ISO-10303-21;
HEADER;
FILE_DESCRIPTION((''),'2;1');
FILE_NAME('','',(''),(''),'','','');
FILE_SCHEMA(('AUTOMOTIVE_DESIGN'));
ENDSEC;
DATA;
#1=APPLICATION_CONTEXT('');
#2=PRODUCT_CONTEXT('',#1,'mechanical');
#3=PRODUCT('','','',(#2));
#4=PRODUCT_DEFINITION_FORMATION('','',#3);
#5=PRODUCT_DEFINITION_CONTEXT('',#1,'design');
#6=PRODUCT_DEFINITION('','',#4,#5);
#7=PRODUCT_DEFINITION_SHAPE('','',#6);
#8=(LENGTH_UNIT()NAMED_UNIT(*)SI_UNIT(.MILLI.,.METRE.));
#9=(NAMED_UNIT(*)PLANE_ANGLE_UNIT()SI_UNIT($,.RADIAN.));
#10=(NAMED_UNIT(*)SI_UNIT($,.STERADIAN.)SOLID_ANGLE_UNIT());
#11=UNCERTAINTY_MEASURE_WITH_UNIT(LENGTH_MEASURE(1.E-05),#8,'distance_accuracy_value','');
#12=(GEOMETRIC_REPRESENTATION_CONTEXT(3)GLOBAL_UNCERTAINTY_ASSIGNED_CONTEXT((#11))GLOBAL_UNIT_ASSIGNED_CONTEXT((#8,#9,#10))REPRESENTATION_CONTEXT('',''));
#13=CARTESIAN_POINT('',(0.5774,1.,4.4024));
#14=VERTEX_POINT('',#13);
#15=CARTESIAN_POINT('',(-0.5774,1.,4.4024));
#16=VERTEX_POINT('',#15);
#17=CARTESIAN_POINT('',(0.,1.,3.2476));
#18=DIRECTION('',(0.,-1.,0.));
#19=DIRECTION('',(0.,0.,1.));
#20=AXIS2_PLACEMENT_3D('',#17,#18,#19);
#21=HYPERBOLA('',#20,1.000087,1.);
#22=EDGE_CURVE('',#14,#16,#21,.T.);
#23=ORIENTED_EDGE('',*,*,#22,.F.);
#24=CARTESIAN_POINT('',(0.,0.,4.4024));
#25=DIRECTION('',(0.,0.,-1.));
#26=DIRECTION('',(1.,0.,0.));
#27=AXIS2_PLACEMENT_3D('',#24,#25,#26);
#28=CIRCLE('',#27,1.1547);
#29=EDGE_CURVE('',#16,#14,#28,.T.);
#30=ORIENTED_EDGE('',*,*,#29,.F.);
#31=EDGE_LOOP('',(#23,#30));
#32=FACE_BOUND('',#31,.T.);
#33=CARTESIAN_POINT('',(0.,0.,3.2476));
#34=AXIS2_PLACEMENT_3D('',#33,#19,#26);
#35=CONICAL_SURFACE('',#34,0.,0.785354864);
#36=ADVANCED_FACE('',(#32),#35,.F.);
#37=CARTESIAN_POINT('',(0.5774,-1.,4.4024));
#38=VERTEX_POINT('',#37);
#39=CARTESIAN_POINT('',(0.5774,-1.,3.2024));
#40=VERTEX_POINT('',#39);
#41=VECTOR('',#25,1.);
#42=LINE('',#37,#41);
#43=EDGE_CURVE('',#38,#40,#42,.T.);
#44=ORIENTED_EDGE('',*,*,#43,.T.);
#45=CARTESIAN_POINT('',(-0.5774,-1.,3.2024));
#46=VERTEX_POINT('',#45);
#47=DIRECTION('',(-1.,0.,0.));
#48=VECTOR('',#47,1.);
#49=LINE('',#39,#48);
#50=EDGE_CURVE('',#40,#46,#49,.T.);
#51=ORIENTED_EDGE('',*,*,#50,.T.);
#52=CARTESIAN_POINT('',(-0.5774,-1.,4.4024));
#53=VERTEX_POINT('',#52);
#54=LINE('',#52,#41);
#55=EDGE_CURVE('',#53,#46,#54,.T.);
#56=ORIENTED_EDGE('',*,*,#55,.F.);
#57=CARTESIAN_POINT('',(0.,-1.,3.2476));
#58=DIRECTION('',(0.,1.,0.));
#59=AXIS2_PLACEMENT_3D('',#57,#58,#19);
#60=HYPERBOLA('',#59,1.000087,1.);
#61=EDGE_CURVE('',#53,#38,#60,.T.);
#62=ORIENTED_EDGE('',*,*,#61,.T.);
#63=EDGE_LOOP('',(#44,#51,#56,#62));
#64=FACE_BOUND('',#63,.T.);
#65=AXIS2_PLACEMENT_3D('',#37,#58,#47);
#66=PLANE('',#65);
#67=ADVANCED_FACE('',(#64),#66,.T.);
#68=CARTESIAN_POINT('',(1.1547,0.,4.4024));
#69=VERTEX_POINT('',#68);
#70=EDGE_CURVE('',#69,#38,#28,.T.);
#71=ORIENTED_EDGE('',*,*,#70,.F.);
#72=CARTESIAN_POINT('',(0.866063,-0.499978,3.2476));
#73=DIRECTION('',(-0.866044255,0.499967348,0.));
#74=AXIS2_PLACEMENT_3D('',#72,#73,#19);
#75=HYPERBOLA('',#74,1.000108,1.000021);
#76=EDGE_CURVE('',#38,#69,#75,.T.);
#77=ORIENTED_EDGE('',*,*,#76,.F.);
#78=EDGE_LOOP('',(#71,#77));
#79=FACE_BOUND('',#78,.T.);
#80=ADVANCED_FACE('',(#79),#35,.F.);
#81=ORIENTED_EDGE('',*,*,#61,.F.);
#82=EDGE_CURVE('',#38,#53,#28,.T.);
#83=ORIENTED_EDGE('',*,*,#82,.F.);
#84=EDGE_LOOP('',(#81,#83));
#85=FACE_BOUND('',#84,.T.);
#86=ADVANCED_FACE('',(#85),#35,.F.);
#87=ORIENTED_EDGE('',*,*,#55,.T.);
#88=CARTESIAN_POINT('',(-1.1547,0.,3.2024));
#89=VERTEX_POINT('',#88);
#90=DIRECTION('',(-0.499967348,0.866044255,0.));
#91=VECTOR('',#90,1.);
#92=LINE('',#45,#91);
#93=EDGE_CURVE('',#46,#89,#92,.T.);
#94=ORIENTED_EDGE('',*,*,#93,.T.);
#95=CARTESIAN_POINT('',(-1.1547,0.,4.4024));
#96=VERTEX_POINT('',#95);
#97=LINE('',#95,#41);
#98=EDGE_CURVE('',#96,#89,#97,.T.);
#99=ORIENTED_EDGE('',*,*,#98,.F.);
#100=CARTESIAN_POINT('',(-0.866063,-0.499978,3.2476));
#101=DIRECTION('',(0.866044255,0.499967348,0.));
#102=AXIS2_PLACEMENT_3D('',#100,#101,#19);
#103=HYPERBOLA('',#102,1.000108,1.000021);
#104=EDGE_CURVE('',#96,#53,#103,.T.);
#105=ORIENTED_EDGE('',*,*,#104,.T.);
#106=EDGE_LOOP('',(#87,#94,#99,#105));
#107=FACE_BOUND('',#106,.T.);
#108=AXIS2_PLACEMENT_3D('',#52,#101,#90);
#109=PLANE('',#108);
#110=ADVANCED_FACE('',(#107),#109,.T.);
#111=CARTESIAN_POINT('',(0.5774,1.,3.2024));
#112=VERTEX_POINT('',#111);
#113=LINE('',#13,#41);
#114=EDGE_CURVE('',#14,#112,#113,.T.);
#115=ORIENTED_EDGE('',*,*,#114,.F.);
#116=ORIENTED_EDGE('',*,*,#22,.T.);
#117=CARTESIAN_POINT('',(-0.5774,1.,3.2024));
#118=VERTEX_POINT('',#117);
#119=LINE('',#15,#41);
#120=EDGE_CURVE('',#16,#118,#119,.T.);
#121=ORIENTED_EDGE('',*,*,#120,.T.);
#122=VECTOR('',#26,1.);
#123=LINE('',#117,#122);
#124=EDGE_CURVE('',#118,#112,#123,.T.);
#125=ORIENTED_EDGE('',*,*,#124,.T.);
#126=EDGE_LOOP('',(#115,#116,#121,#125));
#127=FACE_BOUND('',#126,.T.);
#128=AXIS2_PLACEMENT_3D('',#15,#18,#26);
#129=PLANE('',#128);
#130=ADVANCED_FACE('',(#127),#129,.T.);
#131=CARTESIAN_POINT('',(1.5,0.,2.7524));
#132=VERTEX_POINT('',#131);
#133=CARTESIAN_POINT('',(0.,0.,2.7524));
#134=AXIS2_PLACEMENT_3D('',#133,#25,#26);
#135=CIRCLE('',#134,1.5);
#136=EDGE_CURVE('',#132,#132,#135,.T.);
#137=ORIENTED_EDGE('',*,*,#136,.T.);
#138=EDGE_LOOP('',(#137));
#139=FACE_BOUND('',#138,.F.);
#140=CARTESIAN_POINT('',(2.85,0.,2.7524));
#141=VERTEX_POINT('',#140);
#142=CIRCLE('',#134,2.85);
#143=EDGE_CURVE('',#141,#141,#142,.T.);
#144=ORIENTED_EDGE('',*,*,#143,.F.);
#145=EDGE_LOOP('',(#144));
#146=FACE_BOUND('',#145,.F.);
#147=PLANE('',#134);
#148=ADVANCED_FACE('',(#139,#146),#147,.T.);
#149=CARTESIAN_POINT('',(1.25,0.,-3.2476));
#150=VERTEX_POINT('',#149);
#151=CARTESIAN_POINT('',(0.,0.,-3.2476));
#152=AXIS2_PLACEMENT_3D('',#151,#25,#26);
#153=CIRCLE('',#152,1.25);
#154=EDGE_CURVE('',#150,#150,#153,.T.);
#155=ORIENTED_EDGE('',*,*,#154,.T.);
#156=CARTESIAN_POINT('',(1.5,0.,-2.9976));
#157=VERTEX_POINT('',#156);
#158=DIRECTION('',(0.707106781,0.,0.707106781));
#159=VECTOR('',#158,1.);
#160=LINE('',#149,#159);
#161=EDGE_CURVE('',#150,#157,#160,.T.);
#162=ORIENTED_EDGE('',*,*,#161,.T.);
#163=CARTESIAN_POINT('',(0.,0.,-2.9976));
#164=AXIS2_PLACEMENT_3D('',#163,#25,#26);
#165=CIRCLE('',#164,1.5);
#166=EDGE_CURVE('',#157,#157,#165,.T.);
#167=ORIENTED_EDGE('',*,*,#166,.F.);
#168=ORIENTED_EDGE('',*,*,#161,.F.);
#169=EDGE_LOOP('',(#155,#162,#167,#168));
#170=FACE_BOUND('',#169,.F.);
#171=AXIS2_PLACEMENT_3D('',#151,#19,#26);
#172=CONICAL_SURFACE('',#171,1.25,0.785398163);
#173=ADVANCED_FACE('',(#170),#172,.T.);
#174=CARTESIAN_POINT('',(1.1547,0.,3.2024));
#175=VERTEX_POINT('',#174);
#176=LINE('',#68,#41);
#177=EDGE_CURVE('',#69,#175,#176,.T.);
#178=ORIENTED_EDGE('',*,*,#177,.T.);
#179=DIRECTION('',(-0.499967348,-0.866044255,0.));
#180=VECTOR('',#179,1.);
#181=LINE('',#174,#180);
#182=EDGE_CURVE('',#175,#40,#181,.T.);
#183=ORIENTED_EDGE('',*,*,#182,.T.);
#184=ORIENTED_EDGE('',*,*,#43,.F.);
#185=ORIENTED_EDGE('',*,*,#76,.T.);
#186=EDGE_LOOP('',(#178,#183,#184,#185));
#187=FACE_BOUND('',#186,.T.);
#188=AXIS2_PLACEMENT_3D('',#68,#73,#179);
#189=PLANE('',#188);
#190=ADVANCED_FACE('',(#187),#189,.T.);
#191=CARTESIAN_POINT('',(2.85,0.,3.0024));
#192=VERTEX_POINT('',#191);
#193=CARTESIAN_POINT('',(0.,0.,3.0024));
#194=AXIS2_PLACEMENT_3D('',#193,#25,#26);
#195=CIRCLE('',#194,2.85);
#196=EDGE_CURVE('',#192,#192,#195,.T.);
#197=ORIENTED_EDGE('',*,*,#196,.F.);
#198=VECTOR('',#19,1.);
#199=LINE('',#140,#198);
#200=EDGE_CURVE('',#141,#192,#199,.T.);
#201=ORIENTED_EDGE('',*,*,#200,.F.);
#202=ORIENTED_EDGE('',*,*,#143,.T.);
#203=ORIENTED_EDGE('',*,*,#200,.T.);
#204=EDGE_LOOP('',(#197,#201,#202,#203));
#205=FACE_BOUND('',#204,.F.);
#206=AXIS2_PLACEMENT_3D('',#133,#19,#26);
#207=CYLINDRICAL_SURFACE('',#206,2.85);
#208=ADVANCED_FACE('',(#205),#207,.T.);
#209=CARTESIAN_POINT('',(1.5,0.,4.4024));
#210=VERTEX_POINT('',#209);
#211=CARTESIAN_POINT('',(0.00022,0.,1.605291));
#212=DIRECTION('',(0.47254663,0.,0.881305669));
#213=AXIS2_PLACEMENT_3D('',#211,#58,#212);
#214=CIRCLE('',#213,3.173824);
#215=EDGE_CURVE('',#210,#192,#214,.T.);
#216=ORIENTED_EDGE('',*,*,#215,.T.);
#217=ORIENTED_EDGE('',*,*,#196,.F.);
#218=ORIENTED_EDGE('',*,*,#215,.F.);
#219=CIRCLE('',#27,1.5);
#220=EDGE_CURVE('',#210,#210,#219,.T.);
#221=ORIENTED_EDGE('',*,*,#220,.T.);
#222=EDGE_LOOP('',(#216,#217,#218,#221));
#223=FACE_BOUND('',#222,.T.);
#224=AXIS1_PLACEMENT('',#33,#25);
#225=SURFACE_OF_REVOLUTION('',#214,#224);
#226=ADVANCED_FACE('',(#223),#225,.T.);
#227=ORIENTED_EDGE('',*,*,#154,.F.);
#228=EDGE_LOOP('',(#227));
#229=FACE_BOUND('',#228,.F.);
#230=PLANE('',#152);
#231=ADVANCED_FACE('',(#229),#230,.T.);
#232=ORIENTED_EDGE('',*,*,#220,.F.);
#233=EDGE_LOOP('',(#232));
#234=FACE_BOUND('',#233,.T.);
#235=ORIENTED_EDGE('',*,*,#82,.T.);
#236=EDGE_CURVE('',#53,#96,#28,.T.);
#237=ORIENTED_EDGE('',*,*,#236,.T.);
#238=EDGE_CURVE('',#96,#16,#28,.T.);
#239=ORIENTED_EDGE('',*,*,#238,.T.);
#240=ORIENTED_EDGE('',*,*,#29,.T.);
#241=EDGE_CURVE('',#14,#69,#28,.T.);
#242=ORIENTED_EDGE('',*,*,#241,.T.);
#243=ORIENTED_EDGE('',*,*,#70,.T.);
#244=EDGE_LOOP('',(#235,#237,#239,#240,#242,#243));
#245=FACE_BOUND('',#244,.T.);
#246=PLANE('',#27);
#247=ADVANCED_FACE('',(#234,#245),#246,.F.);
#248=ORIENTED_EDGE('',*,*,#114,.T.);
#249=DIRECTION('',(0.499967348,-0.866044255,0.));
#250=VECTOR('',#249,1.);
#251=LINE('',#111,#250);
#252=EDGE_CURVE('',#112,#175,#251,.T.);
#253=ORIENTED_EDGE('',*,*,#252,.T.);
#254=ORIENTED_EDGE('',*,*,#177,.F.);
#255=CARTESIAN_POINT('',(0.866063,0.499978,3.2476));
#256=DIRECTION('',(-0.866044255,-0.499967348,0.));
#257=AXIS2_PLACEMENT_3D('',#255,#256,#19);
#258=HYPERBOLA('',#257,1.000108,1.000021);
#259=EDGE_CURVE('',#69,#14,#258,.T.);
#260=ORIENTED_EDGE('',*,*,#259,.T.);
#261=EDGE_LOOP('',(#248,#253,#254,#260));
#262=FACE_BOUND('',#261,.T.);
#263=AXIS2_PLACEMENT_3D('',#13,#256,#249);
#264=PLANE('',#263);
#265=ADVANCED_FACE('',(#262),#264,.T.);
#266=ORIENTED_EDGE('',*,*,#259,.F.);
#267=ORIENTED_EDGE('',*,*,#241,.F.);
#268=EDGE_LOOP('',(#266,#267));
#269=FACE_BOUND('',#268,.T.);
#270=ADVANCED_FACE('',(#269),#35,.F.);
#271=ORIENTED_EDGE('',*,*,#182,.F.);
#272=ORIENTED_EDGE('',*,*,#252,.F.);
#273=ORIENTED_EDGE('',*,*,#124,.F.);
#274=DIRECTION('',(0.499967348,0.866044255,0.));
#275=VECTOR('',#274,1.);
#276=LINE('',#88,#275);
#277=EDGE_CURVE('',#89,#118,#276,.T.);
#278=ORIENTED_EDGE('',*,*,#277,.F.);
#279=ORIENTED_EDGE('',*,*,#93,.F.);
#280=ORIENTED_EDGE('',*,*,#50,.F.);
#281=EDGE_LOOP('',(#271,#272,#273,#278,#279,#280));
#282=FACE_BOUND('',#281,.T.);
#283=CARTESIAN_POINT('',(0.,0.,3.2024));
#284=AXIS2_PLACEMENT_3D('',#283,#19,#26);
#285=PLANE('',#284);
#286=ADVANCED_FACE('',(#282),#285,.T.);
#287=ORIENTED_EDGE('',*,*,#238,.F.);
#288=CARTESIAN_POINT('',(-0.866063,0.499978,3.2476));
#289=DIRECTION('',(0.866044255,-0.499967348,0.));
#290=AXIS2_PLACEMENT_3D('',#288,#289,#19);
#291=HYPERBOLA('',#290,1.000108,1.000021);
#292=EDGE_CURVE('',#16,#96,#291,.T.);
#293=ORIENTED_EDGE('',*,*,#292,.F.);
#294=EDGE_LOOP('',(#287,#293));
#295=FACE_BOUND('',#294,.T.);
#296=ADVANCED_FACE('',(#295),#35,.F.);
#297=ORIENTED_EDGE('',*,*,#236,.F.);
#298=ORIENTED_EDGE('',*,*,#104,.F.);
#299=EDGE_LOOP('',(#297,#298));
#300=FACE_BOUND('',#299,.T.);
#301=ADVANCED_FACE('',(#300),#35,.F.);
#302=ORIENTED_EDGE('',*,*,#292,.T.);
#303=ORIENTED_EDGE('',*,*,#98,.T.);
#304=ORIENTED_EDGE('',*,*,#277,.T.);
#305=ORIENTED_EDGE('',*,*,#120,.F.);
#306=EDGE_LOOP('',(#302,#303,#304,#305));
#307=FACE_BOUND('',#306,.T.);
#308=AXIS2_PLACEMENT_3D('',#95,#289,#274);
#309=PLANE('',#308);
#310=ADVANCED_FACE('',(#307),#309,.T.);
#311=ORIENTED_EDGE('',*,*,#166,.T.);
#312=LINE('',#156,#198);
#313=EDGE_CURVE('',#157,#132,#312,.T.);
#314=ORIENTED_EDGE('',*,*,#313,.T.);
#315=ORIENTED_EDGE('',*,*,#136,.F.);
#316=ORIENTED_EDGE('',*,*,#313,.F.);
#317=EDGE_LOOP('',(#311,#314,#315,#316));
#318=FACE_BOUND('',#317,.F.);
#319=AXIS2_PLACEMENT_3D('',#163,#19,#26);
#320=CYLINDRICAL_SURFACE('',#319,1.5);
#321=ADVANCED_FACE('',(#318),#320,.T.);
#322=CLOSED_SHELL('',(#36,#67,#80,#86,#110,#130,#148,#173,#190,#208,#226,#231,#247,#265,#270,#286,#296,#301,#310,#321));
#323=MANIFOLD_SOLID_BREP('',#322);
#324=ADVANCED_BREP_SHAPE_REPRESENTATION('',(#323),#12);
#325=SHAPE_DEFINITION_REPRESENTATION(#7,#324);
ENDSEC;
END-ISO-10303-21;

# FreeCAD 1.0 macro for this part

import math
import FreeCAD as App
import Part
import Sketcher
Q = App.Units.Quantity

doc = App.newDocument("Part")
body = doc.addObject("PartDesign::Body", "Body")

sketch1 = body.newObject("Sketcher::SketchObject", "Sketch")
sketch1.AttachmentSupport = (doc.getObject("XZ_Plane"), [""])
sketch1.MapMode = "FlatFace"
sketch1.addGeometry([
    Part.LineSegment(App.Vector(0, -3.25, 0), App.Vector(0, 3.25, 0)),
    Part.LineSegment(App.Vector(0, 3.25, 0), App.Vector(1.15, 4.4, 0)),
    Part.LineSegment(App.Vector(1.15, 4.4, 0), App.Vector(1.5, 4.4, 0)),
    Part.ArcOfCircle(Part.Circle(App.Vector(0, 1.6, 0), App.Vector(0, 0, 1), 3.17), math.radians(26), math.radians(62)),
    Part.LineSegment(App.Vector(2.85, 3, 0), App.Vector(2.85, 2.75, 0)),
    Part.LineSegment(App.Vector(2.85, 2.75, 0), App.Vector(1.5, 2.75, 0)),
    Part.LineSegment(App.Vector(1.5, 2.75, 0), App.Vector(1.5, -3, 0)),
    Part.LineSegment(App.Vector(1.5, -3, 0), App.Vector(1.25, -3.25, 0)),
    Part.LineSegment(App.Vector(1.25, -3.25, 0), App.Vector(0, -3.25, 0)),
], False)
sketch1.addConstraint([
    Sketcher.Constraint("Coincident", 0, 2, 1, 1),
    Sketcher.Constraint("Coincident", 1, 2, 2, 1),
    Sketcher.Constraint("Coincident", 2, 2, 3, 2),
    Sketcher.Constraint("Coincident", 3, 1, 4, 1),
    Sketcher.Constraint("Coincident", 4, 2, 5, 1),
    Sketcher.Constraint("Coincident", 5, 2, 6, 1),
    Sketcher.Constraint("Coincident", 6, 2, 7, 1),
    Sketcher.Constraint("Coincident", 7, 2, 8, 1),
    Sketcher.Constraint("Coincident", 8, 2, 0, 1),
    Sketcher.Constraint("Vertical", 0),
    Sketcher.Constraint("Horizontal", 2),
    Sketcher.Constraint("Vertical", 4),
    Sketcher.Constraint("Horizontal", 5),
    Sketcher.Constraint("Vertical", 6),
    Sketcher.Constraint("Horizontal", 8),
    Sketcher.Constraint("Symmetric", 0, 2, 8, 2, -1, 1),
    Sketcher.Constraint("PointOnObject", 3, 3, -2),
    Sketcher.Constraint("Parallel", 1, 7),
    Sketcher.Constraint("Vertical", 2, 2, 5, 2),
    Sketcher.Constraint("Angle", 7, Q("-135 deg")),
    Sketcher.Constraint("DistanceY", 6, 2, 3, 1, Q("6 mm")),
    Sketcher.Constraint("DistanceY", 7, 2, 5, 2, Q("6 mm")),
    Sketcher.Constraint("DistanceY", 4, 2, 4, 1, Q("0.25 mm")),
    Sketcher.Constraint("DistanceY", 4, 2, 2, 2, Q("1.65 mm")),
    Sketcher.Constraint("DistanceX", 5, 2, 5, 1, Q("1.35 mm")),
    Sketcher.Constraint("DistanceX", 8, 2, 8, 1, Q("1.25 mm")),
    Sketcher.Constraint("Distance", 1, Q("1.633 mm")),
])
revolution = body.newObject("PartDesign::Revolution", "Revolution")
revolution.Profile = sketch1
revolution.ReferenceAxis = (sketch1, ["V_Axis"])
revolution.Angle = 360

sketch2 = body.newObject("Sketcher::SketchObject", "Sketch001")
sketch2.AttachmentSupport = (doc.getObject("XY_Plane"), [""])
sketch2.MapMode = "FlatFace"
sketch2.AttachmentOffset = App.Placement(App.Vector(0, 0, 4.4024), App.Rotation())
sketch2.addGeometry([
    Part.LineSegment(App.Vector(0.6, -1, 0), App.Vector(1.2, 0, 0)),
    Part.LineSegment(App.Vector(1.2, 0, 0), App.Vector(0.6, 1, 0)),
    Part.LineSegment(App.Vector(0.6, 1, 0), App.Vector(-0.6, 1, 0)),
    Part.LineSegment(App.Vector(-0.6, 1, 0), App.Vector(-1.2, 0, 0)),
    Part.LineSegment(App.Vector(-1.2, 0, 0), App.Vector(-0.6, -1, 0)),
    Part.LineSegment(App.Vector(-0.6, -1, 0), App.Vector(0.6, -1, 0)),
], False)
sketch2.addConstraint([
    Sketcher.Constraint("Coincident", 0, 2, 1, 1),
    Sketcher.Constraint("Coincident", 1, 2, 2, 1),
    Sketcher.Constraint("Coincident", 2, 2, 3, 1),
    Sketcher.Constraint("Coincident", 3, 2, 4, 1),
    Sketcher.Constraint("Coincident", 4, 2, 5, 1),
    Sketcher.Constraint("Coincident", 5, 2, 0, 1),
    Sketcher.Constraint("Horizontal", 2),
    Sketcher.Constraint("Horizontal", 5),
    Sketcher.Constraint("Symmetric", 0, 2, 3, 2, -1, 1),
    Sketcher.Constraint("Symmetric", 1, 2, 4, 2, -1, 1),
    Sketcher.Constraint("PointOnObject", 0, 2, -1),
    Sketcher.Constraint("Parallel", 0, 3),
    Sketcher.Constraint("Vertical", 2, 2, 4, 2),
    Sketcher.Constraint("DistanceY", -1, 1, 1, 2, Q("1 mm")),
    Sketcher.Constraint("DistanceX", 2, 2, 2, 1, Q("1.1548 mm")),
    Sketcher.Constraint("DistanceX", 2, 2, 0, 2, Q("1.732 mm")),
])
pocket1 = body.newObject("PartDesign::Pocket", "Pocket")
pocket1.Profile = sketch2
pocket1.Length = 1.2

doc.recompute()
